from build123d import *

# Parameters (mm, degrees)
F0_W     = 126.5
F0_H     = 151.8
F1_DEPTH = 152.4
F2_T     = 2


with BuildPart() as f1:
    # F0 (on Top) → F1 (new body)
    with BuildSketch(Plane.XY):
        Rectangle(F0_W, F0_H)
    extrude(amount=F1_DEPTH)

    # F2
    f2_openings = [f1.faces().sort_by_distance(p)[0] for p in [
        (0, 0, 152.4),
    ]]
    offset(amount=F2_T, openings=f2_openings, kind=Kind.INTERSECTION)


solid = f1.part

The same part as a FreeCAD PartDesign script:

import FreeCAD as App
import Part
import Sketcher
from FreeCAD import Vector


def faces_at(feature, points):
    """Names of the faces that lie closest to the given points."""
    faces = feature.Shape.Faces
    near = lambda p: min(range(len(faces)), key=lambda i: faces[i].distToShape(Part.Vertex(*p))[0])
    return sorted({f"Face{near(p) + 1}" for p in points})


def add_polygon(sketch, points):
    """Adds a closed chain of lines whose ends are joined by coincident constraints."""
    first, n = sketch.GeometryCount, len(points)
    for a, b in zip(points, points[1:] + points[:1]):
        sketch.addGeometry(Part.LineSegment(App.Vector(*a, 0), App.Vector(*b, 0)), False)
    for i in range(n):
        sketch.addConstraint(Sketcher.Constraint("Coincident", first + i, 2, first + (i + 1) % n, 1))

doc = App.newDocument("Part")
body = doc.addObject("PartDesign::Body", "Body")

sketch1 = body.newObject("Sketcher::SketchObject", "Sketch")
sketch1.AttachmentSupport = (doc.getObject("XY_Plane"), [""])
sketch1.MapMode = "FlatFace"
add_polygon(sketch1, [(-63, 76), (-63, -76), (63, -76), (63, 76)])
sketch1.addConstraint([
    Sketcher.Constraint("Vertical", 0),
    Sketcher.Constraint("Horizontal", 1),
    Sketcher.Constraint("Vertical", 2),
    Sketcher.Constraint("Horizontal", 3),
    Sketcher.Constraint("Symmetric", 0, 2, 2, 2, -1, 1),
    Sketcher.Constraint("DistanceX", 1, 1, 1, 2, 126.5),
    Sketcher.Constraint("DistanceY", 0, 2, 0, 1, 151.8),
])
pad1 = body.newObject("PartDesign::Pad", "Pad")
pad1.Profile = sketch1
pad1.Length = 152.4
doc.recompute()

thickness = body.newObject("PartDesign::Thickness", "Thickness")
thickness.Base = (pad1, faces_at(pad1, [(0, 0, 152.4)]))
thickness.Value = 2
thickness.Reversed = False
thickness.Join = "Intersection"

doc.recompute()
